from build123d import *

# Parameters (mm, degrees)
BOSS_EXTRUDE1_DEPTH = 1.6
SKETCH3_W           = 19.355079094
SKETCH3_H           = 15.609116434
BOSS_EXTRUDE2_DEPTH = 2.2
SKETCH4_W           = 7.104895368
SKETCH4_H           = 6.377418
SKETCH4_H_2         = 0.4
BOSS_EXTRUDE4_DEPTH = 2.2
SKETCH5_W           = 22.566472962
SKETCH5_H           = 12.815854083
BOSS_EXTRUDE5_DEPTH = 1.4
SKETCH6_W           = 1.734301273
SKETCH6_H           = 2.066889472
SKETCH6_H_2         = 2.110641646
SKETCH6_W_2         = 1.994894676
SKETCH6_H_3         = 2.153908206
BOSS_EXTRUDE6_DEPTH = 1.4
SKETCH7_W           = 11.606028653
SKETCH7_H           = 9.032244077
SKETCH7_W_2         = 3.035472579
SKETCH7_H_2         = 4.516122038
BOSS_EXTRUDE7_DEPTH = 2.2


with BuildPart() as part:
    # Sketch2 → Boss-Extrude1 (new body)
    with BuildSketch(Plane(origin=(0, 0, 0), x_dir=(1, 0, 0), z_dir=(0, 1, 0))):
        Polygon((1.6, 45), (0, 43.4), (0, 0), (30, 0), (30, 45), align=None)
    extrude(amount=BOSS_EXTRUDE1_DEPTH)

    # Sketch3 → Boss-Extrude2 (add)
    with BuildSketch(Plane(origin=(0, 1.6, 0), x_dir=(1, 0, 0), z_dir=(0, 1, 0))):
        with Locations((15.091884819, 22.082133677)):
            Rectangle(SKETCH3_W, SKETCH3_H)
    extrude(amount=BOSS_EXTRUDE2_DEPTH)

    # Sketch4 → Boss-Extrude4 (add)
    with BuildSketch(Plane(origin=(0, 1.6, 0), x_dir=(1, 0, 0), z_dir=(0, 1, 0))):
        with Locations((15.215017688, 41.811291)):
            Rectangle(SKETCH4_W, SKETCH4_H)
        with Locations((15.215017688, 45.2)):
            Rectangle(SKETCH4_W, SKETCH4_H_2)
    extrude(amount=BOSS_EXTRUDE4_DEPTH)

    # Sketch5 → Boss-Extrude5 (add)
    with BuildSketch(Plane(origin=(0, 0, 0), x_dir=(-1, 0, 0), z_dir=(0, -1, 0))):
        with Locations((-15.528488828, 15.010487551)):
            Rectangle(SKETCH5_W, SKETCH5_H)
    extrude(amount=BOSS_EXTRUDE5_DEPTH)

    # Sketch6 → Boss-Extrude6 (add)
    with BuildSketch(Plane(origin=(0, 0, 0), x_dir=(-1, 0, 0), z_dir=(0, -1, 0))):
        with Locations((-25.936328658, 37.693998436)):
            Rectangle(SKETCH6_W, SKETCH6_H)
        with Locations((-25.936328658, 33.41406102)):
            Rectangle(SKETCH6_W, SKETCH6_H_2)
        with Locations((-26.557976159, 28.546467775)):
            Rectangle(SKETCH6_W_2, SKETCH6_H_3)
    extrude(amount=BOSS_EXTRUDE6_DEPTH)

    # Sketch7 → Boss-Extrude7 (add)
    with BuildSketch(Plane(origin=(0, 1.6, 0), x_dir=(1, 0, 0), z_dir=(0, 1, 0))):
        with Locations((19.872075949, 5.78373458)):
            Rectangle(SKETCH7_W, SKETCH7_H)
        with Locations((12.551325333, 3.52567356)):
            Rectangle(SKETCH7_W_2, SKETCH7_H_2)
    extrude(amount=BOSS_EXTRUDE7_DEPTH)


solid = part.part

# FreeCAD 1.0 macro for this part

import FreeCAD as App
import Part
import Sketcher

V = App.Vector
Q = App.Units.Quantity

doc = App.newDocument("Part")
body = doc.addObject("PartDesign::Body", "Body")

sketch1 = body.newObject("Sketcher::SketchObject", "Sketch")
sketch1.AttachmentSupport = (doc.getObject("XZ_Plane"), [""])
sketch1.MapMode = "FlatFace"
sketch1.addGeometry([
    Part.LineSegment(V(1.6, -45, 0), V(0, -43.4, 0)),
    Part.LineSegment(V(0, -43.4, 0), V(0, 0, 0)),
    Part.LineSegment(V(0, 0, 0), V(30, 0, 0)),
    Part.LineSegment(V(30, 0, 0), V(30, -45, 0)),
    Part.LineSegment(V(30, -45, 0), V(1.6, -45, 0)),
], False)
sketch1.addConstraint([
    Sketcher.Constraint("Coincident", 0, 2, 1, 1),
    Sketcher.Constraint("Coincident", 1, 2, 2, 1),
    Sketcher.Constraint("Coincident", 2, 2, 3, 1),
    Sketcher.Constraint("Coincident", 3, 2, 4, 1),
    Sketcher.Constraint("Coincident", 4, 2, 0, 1),
    Sketcher.Constraint("Vertical", 1),
    Sketcher.Constraint("Horizontal", 2),
    Sketcher.Constraint("Vertical", 3),
    Sketcher.Constraint("Horizontal", 4),
    Sketcher.Constraint("Coincident", 1, 2, -1, 1),
    Sketcher.Constraint("DistanceX", 2, 1, 2, 2, 30.0),
    Sketcher.Constraint("DistanceY", 3, 2, 3, 1, 45.0),
    Sketcher.Constraint("Angle", 0, Q("135 deg")),
    Sketcher.Constraint("DistanceX", 4, 2, 4, 1, 28.4),
])
pad1 = body.newObject("PartDesign::Pad", "Pad")
pad1.Profile = sketch1
pad1.Length = 1.6
pad1.Reversed = True

sketch2 = body.newObject("Sketcher::SketchObject", "Sketch001")
sketch2.AttachmentSupport = (doc.getObject("XZ_Plane"), [""])
sketch2.MapMode = "FlatFace"
sketch2.AttachmentOffset = App.Placement(V(0, 0, -1.6), App.Rotation())
sketch2.addGeometry([
    Part.LineSegment(V(5, -30, 0), V(5, -14, 0)),
    Part.LineSegment(V(5, -14, 0), V(25, -14, 0)),
    Part.LineSegment(V(25, -14, 0), V(25, -30, 0)),
    Part.LineSegment(V(25, -30, 0), V(5, -30, 0)),
], False)
sketch2.addConstraint([
    Sketcher.Constraint("Coincident", 0, 2, 1, 1),
    Sketcher.Constraint("Coincident", 1, 2, 2, 1),
    Sketcher.Constraint("Coincident", 2, 2, 3, 1),
    Sketcher.Constraint("Coincident", 3, 2, 0, 1),
    Sketcher.Constraint("Vertical", 0),
    Sketcher.Constraint("Horizontal", 1),
    Sketcher.Constraint("Vertical", 2),
    Sketcher.Constraint("Horizontal", 3),
    Sketcher.Constraint("DistanceX", 1, 1, 1, 2, 19.355079),
    Sketcher.Constraint("DistanceY", 0, 1, 0, 2, 15.609116),
    Sketcher.Constraint("DistanceY", 2, 2, -1, 1, 29.886692),
    Sketcher.Constraint("DistanceX", -1, 1, 0, 2, 5.414345),
])
pad2 = body.newObject("PartDesign::Pad", "Pad001")
pad2.Profile = sketch2
pad2.Length = 2.2
pad2.Reversed = True

sketch3 = body.newObject("Sketcher::SketchObject", "Sketch002")
sketch3.AttachmentSupport = (doc.getObject("XZ_Plane"), [""])
sketch3.MapMode = "FlatFace"
sketch3.AttachmentOffset = App.Placement(V(0, 0, -1.6), App.Rotation())
sketch3.addGeometry([
    Part.LineSegment(V(12, -39, 0), V(19, -39, 0)),
    Part.LineSegment(V(19, -39, 0), V(19, -45, 0)),
    Part.LineSegment(V(19, -45, 0), V(12, -45, 0)),
    Part.LineSegment(V(12, -45, 0), V(12, -39, 0)),
], False)
sketch3.addConstraint([
    Sketcher.Constraint("Coincident", 0, 2, 1, 1),
    Sketcher.Constraint("Coincident", 1, 2, 2, 1),
    Sketcher.Constraint("Coincident", 2, 2, 3, 1),
    Sketcher.Constraint("Coincident", 3, 2, 0, 1),
    Sketcher.Constraint("Horizontal", 0),
    Sketcher.Constraint("Vertical", 1),
    Sketcher.Constraint("Horizontal", 2),
    Sketcher.Constraint("Vertical", 3),
    Sketcher.Constraint("DistanceY", 1, 2, -1, 1, 45.4),
    Sketcher.Constraint("DistanceX", 0, 1, 0, 2, 7.104895),
    Sketcher.Constraint("DistanceY", 1, 2, 1, 1, 6.777418),
    Sketcher.Constraint("DistanceX", -1, 1, 2, 2, 11.66257),
])
pad3 = body.newObject("PartDesign::Pad", "Pad002")
pad3.Profile = sketch3
pad3.Length = 2.2
pad3.Reversed = True

sketch4 = body.newObject("Sketcher::SketchObject", "Sketch003")
sketch4.AttachmentSupport = (doc.getObject("XZ_Plane"), [""])
sketch4.MapMode = "FlatFace"
sketch4.addGeometry([
    Part.LineSegment(V(27, -21, 0), V(27, -9, 0)),
    Part.LineSegment(V(27, -9, 0), V(4, -9, 0)),
    Part.LineSegment(V(4, -9, 0), V(4, -21, 0)),
    Part.LineSegment(V(4, -21, 0), V(27, -21, 0)),
], False)
sketch4.addConstraint([
    Sketcher.Constraint("Coincident", 0, 2, 1, 1),
    Sketcher.Constraint("Coincident", 1, 2, 2, 1),
    Sketcher.Constraint("Coincident", 2, 2, 3, 1),
    Sketcher.Constraint("Coincident", 3, 2, 0, 1),
    Sketcher.Constraint("Vertical", 0),
    Sketcher.Constraint("Horizontal", 1),
    Sketcher.Constraint("Vertical", 2),
    Sketcher.Constraint("Horizontal", 3),
    Sketcher.Constraint("DistanceX", 1, 2, 1, 1, 22.566473),
    Sketcher.Constraint("DistanceY", 0, 1, 0, 2, 12.815854),
    Sketcher.Constraint("DistanceY", 0, 2, -1, 1, 8.602561),
    Sketcher.Constraint("DistanceX", -1, 1, 0, 2, 26.811725),
])
pad4 = body.newObject("PartDesign::Pad", "Pad003")
pad4.Profile = sketch4
pad4.Length = 1.4

sketch5 = body.newObject("Sketcher::SketchObject", "Sketch004")
sketch5.AttachmentSupport = (doc.getObject("XZ_Plane"), [""])
sketch5.MapMode = "FlatFace"
sketch5.addGeometry([
    Part.LineSegment(V(26.8, -38.7, 0), V(26.8, -36.7, 0)),
    Part.LineSegment(V(26.8, -36.7, 0), V(25.1, -36.7, 0)),
    Part.LineSegment(V(25.1, -36.7, 0), V(25.1, -38.7, 0)),
    Part.LineSegment(V(25.1, -38.7, 0), V(26.8, -38.7, 0)),
    Part.LineSegment(V(26.8, -34.5, 0), V(26.8, -32.4, 0)),
    Part.LineSegment(V(26.8, -32.4, 0), V(25.1, -32.4, 0)),
    Part.LineSegment(V(25.1, -32.4, 0), V(25.1, -34.5, 0)),
    Part.LineSegment(V(25.1, -34.5, 0), V(26.8, -34.5, 0)),
    Part.LineSegment(V(27.6, -29.6, 0), V(27.6, -27.5, 0)),
    Part.LineSegment(V(27.6, -27.5, 0), V(25.6, -27.5, 0)),
    Part.LineSegment(V(25.6, -27.5, 0), V(25.6, -29.6, 0)),
    Part.LineSegment(V(25.6, -29.6, 0), V(27.6, -29.6, 0)),
], False)
sketch5.addConstraint([
    Sketcher.Constraint("Coincident", 0, 2, 1, 1),
    Sketcher.Constraint("Coincident", 1, 2, 2, 1),
    Sketcher.Constraint("Coincident", 2, 2, 3, 1),
    Sketcher.Constraint("Coincident", 3, 2, 0, 1),
    Sketcher.Constraint("Coincident", 4, 2, 5, 1),
    Sketcher.Constraint("Coincident", 5, 2, 6, 1),
    Sketcher.Constraint("Coincident", 6, 2, 7, 1),
    Sketcher.Constraint("Coincident", 7, 2, 4, 1),
    Sketcher.Constraint("Coincident", 8, 2, 9, 1),
    Sketcher.Constraint("Coincident", 9, 2, 10, 1),
    Sketcher.Constraint("Coincident", 10, 2, 11, 1),
    Sketcher.Constraint("Coincident", 11, 2, 8, 1),
    Sketcher.Constraint("Vertical", 0),
    Sketcher.Constraint("Horizontal", 1),
    Sketcher.Constraint("Vertical", 2),
    Sketcher.Constraint("Horizontal", 3),
    Sketcher.Constraint("Vertical", 4),
    Sketcher.Constraint("Horizontal", 5),
    Sketcher.Constraint("Vertical", 6),
    Sketcher.Constraint("Horizontal", 7),
    Sketcher.Constraint("Vertical", 8),
    Sketcher.Constraint("Horizontal", 9),
    Sketcher.Constraint("Vertical", 10),
    Sketcher.Constraint("Horizontal", 11),
    Sketcher.Constraint("Vertical", 3, 2, 4, 2),
    Sketcher.Constraint("Vertical", 2, 2, 5, 2),
    Sketcher.Constraint("DistanceX", 1, 2, 1, 1, 1.734301),
    Sketcher.Constraint("DistanceY", 0, 1, 0, 2, 2.066889),
    Sketcher.Constraint("DistanceY", 4, 1, 4, 2, 2.110642),
    Sketcher.Constraint("DistanceY", 8, 1, 8, 2, 2.153908),
    Sketcher.Constraint("DistanceX", 9, 2, 9, 1, 1.994895),
    Sketcher.Constraint("DistanceX", -1, 1, 0, 2, 26.803479),
    Sketcher.Constraint("DistanceY", 4, 2, -1, 1, 32.35874),
    Sketcher.Constraint("DistanceX", -1, 1, 9, 2, 25.560529),
    Sketcher.Constraint("DistanceY", 10, 2, -1, 1, 29.623422),
    Sketcher.Constraint("DistanceY", 1, 2, 6, 2, 2.191172),
])
pad5 = body.newObject("PartDesign::Pad", "Pad004")
pad5.Profile = sketch5
pad5.Length = 1.4

sketch6 = body.newObject("Sketcher::SketchObject", "Sketch005")
sketch6.AttachmentSupport = (doc.getObject("XZ_Plane"), [""])
sketch6.MapMode = "FlatFace"
sketch6.AttachmentOffset = App.Placement(V(0, 0, -1.6), App.Rotation())
sketch6.addGeometry([
    Part.LineSegment(V(14.1, -10.3, 0), V(14.1, -5.8, 0)),
    Part.LineSegment(V(14.1, -5.8, 0), V(11, -5.8, 0)),
    Part.LineSegment(V(11, -5.8, 0), V(11, -1.3, 0)),
    Part.LineSegment(V(11, -1.3, 0), V(14.1, -1.3, 0)),
    Part.LineSegment(V(14.1, -1.3, 0), V(25.7, -1.3, 0)),
    Part.LineSegment(V(25.7, -1.3, 0), V(25.7, -10.3, 0)),
    Part.LineSegment(V(25.7, -10.3, 0), V(14.1, -10.3, 0)),
], False)
sketch6.addConstraint([
    Sketcher.Constraint("Coincident", 0, 2, 1, 1),
    Sketcher.Constraint("Coincident", 1, 2, 2, 1),
    Sketcher.Constraint("Coincident", 2, 2, 3, 1),
    Sketcher.Constraint("Coincident", 3, 2, 4, 1),
    Sketcher.Constraint("Coincident", 4, 2, 5, 1),
    Sketcher.Constraint("Coincident", 5, 2, 6, 1),
    Sketcher.Constraint("Coincident", 6, 2, 0, 1),
    Sketcher.Constraint("Vertical", 0),
    Sketcher.Constraint("Horizontal", 1),
    Sketcher.Constraint("Vertical", 2),
    Sketcher.Constraint("Horizontal", 3),
    Sketcher.Constraint("Horizontal", 4),
    Sketcher.Constraint("Vertical", 5),
    Sketcher.Constraint("Horizontal", 6),
    Sketcher.Constraint("Vertical", 0, 2, 3, 2),
    Sketcher.Constraint("Equal", 0, 2),
    Sketcher.Constraint("DistanceX", 4, 1, 4, 2, 11.606029),
    Sketcher.Constraint("DistanceX", 2, 2, 4, 2, 14.641501),
    Sketcher.Constraint("DistanceY", 0, 1, 0, 2, 4.516122),
    Sketcher.Constraint("DistanceX", -1, 1, 0, 2, 14.069062),
    Sketcher.Constraint("DistanceY", 0, 2, -1, 1, 5.783735),
])
pad6 = body.newObject("PartDesign::Pad", "Pad005")
pad6.Profile = sketch6
pad6.Length = 2.2
pad6.Reversed = True

doc.recompute()
